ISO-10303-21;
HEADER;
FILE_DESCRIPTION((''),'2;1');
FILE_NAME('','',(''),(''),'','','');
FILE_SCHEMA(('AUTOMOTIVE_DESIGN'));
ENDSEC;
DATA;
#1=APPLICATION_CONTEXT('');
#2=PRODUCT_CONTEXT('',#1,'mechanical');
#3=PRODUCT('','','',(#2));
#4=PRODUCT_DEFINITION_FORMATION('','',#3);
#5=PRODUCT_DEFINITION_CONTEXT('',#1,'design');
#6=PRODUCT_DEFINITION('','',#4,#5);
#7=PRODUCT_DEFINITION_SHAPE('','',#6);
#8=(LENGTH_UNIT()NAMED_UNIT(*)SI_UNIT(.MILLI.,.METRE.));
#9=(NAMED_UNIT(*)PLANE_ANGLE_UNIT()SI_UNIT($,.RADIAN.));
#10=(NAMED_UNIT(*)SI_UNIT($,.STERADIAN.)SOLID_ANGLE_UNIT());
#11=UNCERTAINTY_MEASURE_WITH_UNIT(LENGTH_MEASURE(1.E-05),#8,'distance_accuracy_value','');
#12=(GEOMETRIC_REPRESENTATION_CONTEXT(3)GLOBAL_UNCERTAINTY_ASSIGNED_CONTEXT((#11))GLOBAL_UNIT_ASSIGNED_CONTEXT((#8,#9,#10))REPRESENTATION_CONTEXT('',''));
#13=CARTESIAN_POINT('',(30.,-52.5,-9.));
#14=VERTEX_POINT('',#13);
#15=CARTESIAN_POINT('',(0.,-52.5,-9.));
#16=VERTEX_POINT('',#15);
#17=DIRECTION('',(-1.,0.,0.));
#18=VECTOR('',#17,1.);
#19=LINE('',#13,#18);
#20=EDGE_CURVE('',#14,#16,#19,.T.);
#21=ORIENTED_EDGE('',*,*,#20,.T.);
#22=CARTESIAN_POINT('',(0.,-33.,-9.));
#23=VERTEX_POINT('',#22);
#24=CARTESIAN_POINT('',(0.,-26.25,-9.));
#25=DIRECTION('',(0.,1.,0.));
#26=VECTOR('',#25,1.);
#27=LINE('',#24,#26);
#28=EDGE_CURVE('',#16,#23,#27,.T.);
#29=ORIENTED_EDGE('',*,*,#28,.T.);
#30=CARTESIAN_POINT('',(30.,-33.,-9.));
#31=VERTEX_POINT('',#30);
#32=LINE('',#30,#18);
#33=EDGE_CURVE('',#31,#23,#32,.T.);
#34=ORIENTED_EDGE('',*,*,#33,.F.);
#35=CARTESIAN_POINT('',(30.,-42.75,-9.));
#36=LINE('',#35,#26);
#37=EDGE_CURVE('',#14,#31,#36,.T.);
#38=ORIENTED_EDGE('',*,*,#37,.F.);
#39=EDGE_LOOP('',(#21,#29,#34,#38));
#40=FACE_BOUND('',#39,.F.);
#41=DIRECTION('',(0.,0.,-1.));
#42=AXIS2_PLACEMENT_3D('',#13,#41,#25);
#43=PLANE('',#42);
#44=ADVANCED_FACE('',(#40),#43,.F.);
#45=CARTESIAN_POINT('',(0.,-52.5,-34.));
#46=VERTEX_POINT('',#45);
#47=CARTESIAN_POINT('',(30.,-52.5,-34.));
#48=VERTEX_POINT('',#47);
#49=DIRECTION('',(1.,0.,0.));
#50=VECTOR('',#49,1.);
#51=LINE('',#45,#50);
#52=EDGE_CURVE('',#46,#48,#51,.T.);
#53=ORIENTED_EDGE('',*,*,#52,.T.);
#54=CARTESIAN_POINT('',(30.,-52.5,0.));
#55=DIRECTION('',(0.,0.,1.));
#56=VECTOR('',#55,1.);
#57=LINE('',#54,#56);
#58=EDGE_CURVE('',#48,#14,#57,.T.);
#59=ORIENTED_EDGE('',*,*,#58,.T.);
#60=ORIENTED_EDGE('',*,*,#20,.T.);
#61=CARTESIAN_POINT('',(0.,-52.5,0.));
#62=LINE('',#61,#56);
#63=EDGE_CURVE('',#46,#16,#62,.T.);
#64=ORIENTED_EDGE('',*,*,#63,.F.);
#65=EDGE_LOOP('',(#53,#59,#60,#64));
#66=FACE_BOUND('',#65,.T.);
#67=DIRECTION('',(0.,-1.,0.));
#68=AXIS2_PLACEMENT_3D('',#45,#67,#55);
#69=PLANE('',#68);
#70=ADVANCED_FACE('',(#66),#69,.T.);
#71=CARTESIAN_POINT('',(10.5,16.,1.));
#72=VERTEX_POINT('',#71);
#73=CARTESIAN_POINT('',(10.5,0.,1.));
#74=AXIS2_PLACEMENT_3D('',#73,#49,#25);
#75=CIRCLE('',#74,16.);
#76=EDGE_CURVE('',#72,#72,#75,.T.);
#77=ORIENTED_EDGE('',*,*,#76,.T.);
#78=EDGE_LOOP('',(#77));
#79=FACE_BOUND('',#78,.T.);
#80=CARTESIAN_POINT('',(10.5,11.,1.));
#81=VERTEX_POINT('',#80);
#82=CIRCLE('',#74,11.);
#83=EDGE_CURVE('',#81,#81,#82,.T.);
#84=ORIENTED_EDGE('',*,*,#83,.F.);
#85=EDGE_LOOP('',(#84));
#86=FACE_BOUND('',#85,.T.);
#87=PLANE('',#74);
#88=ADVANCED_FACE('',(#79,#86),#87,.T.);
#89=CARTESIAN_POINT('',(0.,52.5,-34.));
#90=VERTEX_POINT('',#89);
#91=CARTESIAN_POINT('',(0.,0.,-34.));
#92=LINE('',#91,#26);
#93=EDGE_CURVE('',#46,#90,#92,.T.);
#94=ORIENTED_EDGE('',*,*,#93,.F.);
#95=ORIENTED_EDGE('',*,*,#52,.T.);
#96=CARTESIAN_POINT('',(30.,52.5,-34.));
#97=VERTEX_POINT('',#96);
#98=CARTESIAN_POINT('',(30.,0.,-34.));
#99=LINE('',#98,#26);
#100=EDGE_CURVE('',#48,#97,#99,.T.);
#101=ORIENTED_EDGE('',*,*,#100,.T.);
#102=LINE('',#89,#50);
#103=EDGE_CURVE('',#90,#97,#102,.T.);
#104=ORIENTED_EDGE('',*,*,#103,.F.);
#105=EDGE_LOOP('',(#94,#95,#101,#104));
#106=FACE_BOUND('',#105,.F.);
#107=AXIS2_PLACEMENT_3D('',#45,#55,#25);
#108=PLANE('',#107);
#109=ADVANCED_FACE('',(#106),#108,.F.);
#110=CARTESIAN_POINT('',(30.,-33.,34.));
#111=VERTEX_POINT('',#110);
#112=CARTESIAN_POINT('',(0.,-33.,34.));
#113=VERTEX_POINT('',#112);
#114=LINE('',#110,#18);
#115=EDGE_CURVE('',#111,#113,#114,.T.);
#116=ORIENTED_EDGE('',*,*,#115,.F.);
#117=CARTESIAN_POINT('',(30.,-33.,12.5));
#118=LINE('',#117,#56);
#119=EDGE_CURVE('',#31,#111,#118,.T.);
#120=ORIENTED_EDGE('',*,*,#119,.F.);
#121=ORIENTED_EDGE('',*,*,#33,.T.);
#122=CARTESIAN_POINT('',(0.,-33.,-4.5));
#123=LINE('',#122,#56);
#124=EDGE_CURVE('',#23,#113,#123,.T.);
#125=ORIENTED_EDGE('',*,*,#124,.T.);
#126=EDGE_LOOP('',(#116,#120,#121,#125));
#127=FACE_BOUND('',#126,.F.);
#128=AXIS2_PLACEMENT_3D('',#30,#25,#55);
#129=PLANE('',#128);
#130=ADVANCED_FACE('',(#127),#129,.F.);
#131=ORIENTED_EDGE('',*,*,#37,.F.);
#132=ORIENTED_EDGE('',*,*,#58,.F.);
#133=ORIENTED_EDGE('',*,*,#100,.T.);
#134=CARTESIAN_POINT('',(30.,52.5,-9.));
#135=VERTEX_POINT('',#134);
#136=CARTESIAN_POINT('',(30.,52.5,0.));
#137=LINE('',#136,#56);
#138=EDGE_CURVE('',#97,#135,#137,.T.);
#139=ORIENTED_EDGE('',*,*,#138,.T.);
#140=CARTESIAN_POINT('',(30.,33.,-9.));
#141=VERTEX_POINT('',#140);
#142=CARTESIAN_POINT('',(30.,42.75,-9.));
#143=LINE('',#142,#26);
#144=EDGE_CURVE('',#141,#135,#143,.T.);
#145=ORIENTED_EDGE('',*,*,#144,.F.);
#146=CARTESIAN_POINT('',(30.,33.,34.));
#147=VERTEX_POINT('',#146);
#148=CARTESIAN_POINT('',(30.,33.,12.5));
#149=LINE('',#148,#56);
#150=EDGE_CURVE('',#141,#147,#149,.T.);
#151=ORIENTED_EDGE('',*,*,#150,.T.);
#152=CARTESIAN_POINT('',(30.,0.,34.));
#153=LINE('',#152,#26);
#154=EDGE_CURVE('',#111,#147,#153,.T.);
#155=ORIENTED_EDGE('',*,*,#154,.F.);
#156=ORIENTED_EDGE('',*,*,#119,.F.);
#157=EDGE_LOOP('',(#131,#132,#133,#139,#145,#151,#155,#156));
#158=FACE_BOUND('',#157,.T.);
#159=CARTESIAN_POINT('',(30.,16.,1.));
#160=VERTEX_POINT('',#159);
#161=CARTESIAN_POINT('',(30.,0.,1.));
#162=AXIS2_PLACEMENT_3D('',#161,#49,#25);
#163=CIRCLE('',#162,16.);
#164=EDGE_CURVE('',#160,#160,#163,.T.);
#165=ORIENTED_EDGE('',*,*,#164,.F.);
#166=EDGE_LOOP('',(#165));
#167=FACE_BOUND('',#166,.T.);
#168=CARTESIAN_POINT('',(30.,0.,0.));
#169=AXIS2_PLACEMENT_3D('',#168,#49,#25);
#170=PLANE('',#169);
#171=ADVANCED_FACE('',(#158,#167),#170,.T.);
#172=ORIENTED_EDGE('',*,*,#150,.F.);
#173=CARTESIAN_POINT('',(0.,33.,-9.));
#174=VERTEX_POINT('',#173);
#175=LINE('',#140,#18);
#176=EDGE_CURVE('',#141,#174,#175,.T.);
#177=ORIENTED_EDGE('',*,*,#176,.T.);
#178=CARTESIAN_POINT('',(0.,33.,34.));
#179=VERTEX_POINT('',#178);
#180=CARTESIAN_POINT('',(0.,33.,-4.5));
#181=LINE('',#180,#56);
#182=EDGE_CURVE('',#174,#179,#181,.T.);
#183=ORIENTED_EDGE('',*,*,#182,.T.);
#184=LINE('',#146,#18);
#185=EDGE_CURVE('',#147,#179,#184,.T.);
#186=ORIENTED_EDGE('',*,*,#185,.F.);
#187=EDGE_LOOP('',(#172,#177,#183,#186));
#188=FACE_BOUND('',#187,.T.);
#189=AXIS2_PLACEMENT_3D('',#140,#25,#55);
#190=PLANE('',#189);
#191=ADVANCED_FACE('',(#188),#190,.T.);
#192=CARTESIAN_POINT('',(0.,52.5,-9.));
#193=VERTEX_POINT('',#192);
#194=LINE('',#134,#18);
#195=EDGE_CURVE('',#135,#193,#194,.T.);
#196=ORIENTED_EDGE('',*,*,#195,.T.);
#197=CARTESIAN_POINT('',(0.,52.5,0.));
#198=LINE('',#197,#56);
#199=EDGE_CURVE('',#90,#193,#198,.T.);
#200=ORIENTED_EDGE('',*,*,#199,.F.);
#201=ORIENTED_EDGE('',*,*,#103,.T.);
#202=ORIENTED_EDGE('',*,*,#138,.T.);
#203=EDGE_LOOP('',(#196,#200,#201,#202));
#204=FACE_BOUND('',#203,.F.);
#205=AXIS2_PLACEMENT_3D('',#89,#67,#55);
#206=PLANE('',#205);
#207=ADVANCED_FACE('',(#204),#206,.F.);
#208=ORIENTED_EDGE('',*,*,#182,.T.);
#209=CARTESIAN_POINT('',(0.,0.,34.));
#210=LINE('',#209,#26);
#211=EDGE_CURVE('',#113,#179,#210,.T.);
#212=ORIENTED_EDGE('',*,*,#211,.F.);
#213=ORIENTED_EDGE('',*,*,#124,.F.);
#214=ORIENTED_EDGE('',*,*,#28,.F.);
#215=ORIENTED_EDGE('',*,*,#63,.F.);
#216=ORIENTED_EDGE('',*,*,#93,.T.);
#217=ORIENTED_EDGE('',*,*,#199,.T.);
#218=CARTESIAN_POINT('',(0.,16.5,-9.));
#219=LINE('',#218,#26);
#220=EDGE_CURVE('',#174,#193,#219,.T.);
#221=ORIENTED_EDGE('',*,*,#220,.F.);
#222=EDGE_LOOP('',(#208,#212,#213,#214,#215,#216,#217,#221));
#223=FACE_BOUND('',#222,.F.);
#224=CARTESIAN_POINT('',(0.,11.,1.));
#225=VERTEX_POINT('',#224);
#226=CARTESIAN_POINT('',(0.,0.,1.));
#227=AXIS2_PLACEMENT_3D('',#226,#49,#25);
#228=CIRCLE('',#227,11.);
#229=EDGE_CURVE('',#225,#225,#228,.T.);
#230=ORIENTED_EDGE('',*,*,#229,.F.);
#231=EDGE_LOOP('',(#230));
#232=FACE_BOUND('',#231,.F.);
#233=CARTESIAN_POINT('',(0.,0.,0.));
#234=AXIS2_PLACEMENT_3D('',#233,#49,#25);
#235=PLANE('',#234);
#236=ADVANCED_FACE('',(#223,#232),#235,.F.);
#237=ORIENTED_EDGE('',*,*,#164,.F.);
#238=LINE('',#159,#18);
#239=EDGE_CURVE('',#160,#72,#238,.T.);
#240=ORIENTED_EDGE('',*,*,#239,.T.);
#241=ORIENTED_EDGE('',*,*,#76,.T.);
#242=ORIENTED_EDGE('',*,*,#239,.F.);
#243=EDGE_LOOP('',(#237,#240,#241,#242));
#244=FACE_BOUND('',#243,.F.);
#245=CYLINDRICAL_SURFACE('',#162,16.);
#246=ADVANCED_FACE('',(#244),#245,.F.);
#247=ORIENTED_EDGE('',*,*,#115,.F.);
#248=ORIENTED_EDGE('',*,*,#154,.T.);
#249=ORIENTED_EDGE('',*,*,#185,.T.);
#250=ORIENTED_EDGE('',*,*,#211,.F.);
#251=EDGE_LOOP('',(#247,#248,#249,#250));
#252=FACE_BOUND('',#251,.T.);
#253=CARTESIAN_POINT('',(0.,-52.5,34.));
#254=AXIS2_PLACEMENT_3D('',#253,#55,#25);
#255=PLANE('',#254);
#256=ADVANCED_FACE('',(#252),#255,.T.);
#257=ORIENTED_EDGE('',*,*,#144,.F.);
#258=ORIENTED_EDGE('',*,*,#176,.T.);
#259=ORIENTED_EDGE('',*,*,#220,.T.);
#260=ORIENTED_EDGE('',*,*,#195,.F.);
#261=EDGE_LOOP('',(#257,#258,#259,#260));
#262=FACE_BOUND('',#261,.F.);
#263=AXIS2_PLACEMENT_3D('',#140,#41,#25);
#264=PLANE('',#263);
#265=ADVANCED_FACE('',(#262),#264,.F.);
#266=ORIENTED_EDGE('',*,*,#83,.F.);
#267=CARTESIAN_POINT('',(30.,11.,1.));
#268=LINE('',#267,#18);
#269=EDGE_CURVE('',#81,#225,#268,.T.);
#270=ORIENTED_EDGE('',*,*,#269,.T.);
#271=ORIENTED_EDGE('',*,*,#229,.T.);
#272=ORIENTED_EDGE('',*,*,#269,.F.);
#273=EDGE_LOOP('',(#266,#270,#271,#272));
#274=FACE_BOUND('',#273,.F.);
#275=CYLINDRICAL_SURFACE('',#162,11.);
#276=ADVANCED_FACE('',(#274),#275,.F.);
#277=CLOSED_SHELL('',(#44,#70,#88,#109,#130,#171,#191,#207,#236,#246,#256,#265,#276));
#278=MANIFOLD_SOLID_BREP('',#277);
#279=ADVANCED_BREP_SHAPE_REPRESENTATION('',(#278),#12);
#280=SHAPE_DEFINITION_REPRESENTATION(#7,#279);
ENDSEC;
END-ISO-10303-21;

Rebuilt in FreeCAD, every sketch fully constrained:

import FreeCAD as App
import Part
import Sketcher
Q = App.Units.Quantity

doc = App.newDocument("Part")
body = doc.addObject("PartDesign::Body", "Body")

# Sketch on YZ plane
sketch1 = body.newObject("Sketcher::SketchObject", "Sketch")
sketch1.AttachmentSupport = (doc.getObject("YZ_Plane"), [""])
sketch1.MapMode = "FlatFace"
sketch1.addGeometry([
    Part.LineSegment(App.Vector(-52, 34, 0), App.Vector(-52, -34, 0)),
    Part.LineSegment(App.Vector(-52, -34, 0), App.Vector(52, -34, 0)),
    Part.LineSegment(App.Vector(52, -34, 0), App.Vector(52, 34, 0)),
    Part.LineSegment(App.Vector(52, 34, 0), App.Vector(-52, 34, 0)),
], False)
sketch1.addConstraint([
    Sketcher.Constraint("Coincident", 0, 2, 1, 1),
    Sketcher.Constraint("Coincident", 1, 2, 2, 1),
    Sketcher.Constraint("Coincident", 2, 2, 3, 1),
    Sketcher.Constraint("Coincident", 3, 2, 0, 1),
    Sketcher.Constraint("Vertical", 0),
    Sketcher.Constraint("Horizontal", 1),
    Sketcher.Constraint("Vertical", 2),
    Sketcher.Constraint("Horizontal", 3),
    Sketcher.Constraint("Symmetric", 0, 2, 2, 2, -1, 1),
    Sketcher.Constraint("DistanceX", 1, 1, 1, 2, Q("105 mm")),
    Sketcher.Constraint("DistanceY", 0, 2, 0, 1, Q("68 mm")),
])
pad1 = body.newObject("PartDesign::Pad", "Pad")
pad1.Profile = sketch1
pad1.Length = 30

# Sketch on YZ plane
sketch2 = body.newObject("Sketcher::SketchObject", "Sketch001")
sketch2.AttachmentSupport = (doc.getObject("YZ_Plane"), [""])
sketch2.MapMode = "FlatFace"
sketch2.AttachmentOffset = App.Placement(App.Vector(0, 0, 30), App.Rotation())
sketch2.addGeometry([
    Part.LineSegment(App.Vector(-52, 34, 0), App.Vector(-52, -9, 0)),  # 0
    Part.LineSegment(App.Vector(-52, -9, 0), App.Vector(-33, -9, 0)),  # 1
    Part.LineSegment(App.Vector(-33, -9, 0), App.Vector(-33, 34, 0)),  # 2
    Part.LineSegment(App.Vector(-33, 34, 0), App.Vector(-52, 34, 0)),  # 3
    Part.LineSegment(App.Vector(33, 34, 0), App.Vector(33, -9, 0)),  # 4
    Part.LineSegment(App.Vector(33, -9, 0), App.Vector(52, -9, 0)),  # 5
    Part.LineSegment(App.Vector(52, -9, 0), App.Vector(52, 34, 0)),  # 6
    Part.LineSegment(App.Vector(52, 34, 0), App.Vector(33, 34, 0)),  # 7
], False)
sketch2.addConstraint([
    Sketcher.Constraint("Coincident", 0, 2, 1, 1),
    Sketcher.Constraint("Coincident", 1, 2, 2, 1),
    Sketcher.Constraint("Coincident", 2, 2, 3, 1),
    Sketcher.Constraint("Coincident", 3, 2, 0, 1),
    Sketcher.Constraint("Coincident", 4, 2, 5, 1),
    Sketcher.Constraint("Coincident", 5, 2, 6, 1),
    Sketcher.Constraint("Coincident", 6, 2, 7, 1),
    Sketcher.Constraint("Coincident", 7, 2, 4, 1),
    Sketcher.Constraint("Vertical", 0),
    Sketcher.Constraint("Horizontal", 1),
    Sketcher.Constraint("Vertical", 2),
    Sketcher.Constraint("Horizontal", 3),
    Sketcher.Constraint("Vertical", 4),
    Sketcher.Constraint("Horizontal", 5),
    Sketcher.Constraint("Vertical", 6),
    Sketcher.Constraint("Horizontal", 7),
    Sketcher.Constraint("Symmetric", 1, 2, 4, 2, -2),
    Sketcher.Constraint("Symmetric", 3, 2, 6, 2, -2),
    Sketcher.Constraint("DistanceY", 0, 2, 0, 1, Q("43 mm")),
    Sketcher.Constraint("DistanceX", 1, 1, 1, 2, Q("19.5 mm")),
    Sketcher.Constraint("DistanceY", 0, 2, -1, 1, Q("9 mm")),
    Sketcher.Constraint("DistanceX", 1, 2, -1, 1, Q("33 mm")),
])
pocket1 = body.newObject("PartDesign::Pocket", "Pocket")
pocket1.Profile = sketch2
pocket1.Type = "ThroughAll"

# Sketch on YZ plane
sketch3 = body.newObject("Sketcher::SketchObject", "Sketch002")
sketch3.AttachmentSupport = (doc.getObject("YZ_Plane"), [""])
sketch3.MapMode = "FlatFace"
sketch3.AttachmentOffset = App.Placement(App.Vector(0, 0, 30), App.Rotation())
sketch3.addGeometry([
    Part.Circle(App.Vector(0, 1, 0), App.Vector(0, 0, 1), 16),
    Part.Circle(App.Vector(0, 1, 0), App.Vector(0, 0, 1), 11),
], False)
sketch3.addConstraint([
    Sketcher.Constraint("Coincident", 1, 3, 0, 3),
    Sketcher.Constraint("PointOnObject", 0, 3, -2),
    Sketcher.Constraint("Diameter", 0, Q("32 mm")),
    Sketcher.Constraint("Diameter", 1, Q("22 mm")),
    Sketcher.Constraint("DistanceY", -1, 1, 0, 3, Q("1 mm")),
])
pocket2 = body.newObject("PartDesign::Pocket", "Pocket001")
pocket2.Profile = sketch3
pocket2.Length = 19.5

# Sketch on YZ plane
sketch4 = body.newObject("Sketcher::SketchObject", "Sketch003")
sketch4.AttachmentSupport = (doc.getObject("YZ_Plane"), [""])
sketch4.MapMode = "FlatFace"
sketch4.AttachmentOffset = App.Placement(App.Vector(0, 0, 30), App.Rotation())
sketch4.addGeometry(Part.Circle(App.Vector(0, 1, 0), App.Vector(0, 0, 1), 11), False)
sketch4.addConstraint([
    Sketcher.Constraint("PointOnObject", 0, 3, -2),
    Sketcher.Constraint("Diameter", 0, Q("22 mm")),
    Sketcher.Constraint("DistanceY", -1, 1, 0, 3, Q("1 mm")),
])
pocket3 = body.newObject("PartDesign::Pocket", "Pocket002")
pocket3.Profile = sketch4
pocket3.Type = "ThroughAll"

doc.recompute()
